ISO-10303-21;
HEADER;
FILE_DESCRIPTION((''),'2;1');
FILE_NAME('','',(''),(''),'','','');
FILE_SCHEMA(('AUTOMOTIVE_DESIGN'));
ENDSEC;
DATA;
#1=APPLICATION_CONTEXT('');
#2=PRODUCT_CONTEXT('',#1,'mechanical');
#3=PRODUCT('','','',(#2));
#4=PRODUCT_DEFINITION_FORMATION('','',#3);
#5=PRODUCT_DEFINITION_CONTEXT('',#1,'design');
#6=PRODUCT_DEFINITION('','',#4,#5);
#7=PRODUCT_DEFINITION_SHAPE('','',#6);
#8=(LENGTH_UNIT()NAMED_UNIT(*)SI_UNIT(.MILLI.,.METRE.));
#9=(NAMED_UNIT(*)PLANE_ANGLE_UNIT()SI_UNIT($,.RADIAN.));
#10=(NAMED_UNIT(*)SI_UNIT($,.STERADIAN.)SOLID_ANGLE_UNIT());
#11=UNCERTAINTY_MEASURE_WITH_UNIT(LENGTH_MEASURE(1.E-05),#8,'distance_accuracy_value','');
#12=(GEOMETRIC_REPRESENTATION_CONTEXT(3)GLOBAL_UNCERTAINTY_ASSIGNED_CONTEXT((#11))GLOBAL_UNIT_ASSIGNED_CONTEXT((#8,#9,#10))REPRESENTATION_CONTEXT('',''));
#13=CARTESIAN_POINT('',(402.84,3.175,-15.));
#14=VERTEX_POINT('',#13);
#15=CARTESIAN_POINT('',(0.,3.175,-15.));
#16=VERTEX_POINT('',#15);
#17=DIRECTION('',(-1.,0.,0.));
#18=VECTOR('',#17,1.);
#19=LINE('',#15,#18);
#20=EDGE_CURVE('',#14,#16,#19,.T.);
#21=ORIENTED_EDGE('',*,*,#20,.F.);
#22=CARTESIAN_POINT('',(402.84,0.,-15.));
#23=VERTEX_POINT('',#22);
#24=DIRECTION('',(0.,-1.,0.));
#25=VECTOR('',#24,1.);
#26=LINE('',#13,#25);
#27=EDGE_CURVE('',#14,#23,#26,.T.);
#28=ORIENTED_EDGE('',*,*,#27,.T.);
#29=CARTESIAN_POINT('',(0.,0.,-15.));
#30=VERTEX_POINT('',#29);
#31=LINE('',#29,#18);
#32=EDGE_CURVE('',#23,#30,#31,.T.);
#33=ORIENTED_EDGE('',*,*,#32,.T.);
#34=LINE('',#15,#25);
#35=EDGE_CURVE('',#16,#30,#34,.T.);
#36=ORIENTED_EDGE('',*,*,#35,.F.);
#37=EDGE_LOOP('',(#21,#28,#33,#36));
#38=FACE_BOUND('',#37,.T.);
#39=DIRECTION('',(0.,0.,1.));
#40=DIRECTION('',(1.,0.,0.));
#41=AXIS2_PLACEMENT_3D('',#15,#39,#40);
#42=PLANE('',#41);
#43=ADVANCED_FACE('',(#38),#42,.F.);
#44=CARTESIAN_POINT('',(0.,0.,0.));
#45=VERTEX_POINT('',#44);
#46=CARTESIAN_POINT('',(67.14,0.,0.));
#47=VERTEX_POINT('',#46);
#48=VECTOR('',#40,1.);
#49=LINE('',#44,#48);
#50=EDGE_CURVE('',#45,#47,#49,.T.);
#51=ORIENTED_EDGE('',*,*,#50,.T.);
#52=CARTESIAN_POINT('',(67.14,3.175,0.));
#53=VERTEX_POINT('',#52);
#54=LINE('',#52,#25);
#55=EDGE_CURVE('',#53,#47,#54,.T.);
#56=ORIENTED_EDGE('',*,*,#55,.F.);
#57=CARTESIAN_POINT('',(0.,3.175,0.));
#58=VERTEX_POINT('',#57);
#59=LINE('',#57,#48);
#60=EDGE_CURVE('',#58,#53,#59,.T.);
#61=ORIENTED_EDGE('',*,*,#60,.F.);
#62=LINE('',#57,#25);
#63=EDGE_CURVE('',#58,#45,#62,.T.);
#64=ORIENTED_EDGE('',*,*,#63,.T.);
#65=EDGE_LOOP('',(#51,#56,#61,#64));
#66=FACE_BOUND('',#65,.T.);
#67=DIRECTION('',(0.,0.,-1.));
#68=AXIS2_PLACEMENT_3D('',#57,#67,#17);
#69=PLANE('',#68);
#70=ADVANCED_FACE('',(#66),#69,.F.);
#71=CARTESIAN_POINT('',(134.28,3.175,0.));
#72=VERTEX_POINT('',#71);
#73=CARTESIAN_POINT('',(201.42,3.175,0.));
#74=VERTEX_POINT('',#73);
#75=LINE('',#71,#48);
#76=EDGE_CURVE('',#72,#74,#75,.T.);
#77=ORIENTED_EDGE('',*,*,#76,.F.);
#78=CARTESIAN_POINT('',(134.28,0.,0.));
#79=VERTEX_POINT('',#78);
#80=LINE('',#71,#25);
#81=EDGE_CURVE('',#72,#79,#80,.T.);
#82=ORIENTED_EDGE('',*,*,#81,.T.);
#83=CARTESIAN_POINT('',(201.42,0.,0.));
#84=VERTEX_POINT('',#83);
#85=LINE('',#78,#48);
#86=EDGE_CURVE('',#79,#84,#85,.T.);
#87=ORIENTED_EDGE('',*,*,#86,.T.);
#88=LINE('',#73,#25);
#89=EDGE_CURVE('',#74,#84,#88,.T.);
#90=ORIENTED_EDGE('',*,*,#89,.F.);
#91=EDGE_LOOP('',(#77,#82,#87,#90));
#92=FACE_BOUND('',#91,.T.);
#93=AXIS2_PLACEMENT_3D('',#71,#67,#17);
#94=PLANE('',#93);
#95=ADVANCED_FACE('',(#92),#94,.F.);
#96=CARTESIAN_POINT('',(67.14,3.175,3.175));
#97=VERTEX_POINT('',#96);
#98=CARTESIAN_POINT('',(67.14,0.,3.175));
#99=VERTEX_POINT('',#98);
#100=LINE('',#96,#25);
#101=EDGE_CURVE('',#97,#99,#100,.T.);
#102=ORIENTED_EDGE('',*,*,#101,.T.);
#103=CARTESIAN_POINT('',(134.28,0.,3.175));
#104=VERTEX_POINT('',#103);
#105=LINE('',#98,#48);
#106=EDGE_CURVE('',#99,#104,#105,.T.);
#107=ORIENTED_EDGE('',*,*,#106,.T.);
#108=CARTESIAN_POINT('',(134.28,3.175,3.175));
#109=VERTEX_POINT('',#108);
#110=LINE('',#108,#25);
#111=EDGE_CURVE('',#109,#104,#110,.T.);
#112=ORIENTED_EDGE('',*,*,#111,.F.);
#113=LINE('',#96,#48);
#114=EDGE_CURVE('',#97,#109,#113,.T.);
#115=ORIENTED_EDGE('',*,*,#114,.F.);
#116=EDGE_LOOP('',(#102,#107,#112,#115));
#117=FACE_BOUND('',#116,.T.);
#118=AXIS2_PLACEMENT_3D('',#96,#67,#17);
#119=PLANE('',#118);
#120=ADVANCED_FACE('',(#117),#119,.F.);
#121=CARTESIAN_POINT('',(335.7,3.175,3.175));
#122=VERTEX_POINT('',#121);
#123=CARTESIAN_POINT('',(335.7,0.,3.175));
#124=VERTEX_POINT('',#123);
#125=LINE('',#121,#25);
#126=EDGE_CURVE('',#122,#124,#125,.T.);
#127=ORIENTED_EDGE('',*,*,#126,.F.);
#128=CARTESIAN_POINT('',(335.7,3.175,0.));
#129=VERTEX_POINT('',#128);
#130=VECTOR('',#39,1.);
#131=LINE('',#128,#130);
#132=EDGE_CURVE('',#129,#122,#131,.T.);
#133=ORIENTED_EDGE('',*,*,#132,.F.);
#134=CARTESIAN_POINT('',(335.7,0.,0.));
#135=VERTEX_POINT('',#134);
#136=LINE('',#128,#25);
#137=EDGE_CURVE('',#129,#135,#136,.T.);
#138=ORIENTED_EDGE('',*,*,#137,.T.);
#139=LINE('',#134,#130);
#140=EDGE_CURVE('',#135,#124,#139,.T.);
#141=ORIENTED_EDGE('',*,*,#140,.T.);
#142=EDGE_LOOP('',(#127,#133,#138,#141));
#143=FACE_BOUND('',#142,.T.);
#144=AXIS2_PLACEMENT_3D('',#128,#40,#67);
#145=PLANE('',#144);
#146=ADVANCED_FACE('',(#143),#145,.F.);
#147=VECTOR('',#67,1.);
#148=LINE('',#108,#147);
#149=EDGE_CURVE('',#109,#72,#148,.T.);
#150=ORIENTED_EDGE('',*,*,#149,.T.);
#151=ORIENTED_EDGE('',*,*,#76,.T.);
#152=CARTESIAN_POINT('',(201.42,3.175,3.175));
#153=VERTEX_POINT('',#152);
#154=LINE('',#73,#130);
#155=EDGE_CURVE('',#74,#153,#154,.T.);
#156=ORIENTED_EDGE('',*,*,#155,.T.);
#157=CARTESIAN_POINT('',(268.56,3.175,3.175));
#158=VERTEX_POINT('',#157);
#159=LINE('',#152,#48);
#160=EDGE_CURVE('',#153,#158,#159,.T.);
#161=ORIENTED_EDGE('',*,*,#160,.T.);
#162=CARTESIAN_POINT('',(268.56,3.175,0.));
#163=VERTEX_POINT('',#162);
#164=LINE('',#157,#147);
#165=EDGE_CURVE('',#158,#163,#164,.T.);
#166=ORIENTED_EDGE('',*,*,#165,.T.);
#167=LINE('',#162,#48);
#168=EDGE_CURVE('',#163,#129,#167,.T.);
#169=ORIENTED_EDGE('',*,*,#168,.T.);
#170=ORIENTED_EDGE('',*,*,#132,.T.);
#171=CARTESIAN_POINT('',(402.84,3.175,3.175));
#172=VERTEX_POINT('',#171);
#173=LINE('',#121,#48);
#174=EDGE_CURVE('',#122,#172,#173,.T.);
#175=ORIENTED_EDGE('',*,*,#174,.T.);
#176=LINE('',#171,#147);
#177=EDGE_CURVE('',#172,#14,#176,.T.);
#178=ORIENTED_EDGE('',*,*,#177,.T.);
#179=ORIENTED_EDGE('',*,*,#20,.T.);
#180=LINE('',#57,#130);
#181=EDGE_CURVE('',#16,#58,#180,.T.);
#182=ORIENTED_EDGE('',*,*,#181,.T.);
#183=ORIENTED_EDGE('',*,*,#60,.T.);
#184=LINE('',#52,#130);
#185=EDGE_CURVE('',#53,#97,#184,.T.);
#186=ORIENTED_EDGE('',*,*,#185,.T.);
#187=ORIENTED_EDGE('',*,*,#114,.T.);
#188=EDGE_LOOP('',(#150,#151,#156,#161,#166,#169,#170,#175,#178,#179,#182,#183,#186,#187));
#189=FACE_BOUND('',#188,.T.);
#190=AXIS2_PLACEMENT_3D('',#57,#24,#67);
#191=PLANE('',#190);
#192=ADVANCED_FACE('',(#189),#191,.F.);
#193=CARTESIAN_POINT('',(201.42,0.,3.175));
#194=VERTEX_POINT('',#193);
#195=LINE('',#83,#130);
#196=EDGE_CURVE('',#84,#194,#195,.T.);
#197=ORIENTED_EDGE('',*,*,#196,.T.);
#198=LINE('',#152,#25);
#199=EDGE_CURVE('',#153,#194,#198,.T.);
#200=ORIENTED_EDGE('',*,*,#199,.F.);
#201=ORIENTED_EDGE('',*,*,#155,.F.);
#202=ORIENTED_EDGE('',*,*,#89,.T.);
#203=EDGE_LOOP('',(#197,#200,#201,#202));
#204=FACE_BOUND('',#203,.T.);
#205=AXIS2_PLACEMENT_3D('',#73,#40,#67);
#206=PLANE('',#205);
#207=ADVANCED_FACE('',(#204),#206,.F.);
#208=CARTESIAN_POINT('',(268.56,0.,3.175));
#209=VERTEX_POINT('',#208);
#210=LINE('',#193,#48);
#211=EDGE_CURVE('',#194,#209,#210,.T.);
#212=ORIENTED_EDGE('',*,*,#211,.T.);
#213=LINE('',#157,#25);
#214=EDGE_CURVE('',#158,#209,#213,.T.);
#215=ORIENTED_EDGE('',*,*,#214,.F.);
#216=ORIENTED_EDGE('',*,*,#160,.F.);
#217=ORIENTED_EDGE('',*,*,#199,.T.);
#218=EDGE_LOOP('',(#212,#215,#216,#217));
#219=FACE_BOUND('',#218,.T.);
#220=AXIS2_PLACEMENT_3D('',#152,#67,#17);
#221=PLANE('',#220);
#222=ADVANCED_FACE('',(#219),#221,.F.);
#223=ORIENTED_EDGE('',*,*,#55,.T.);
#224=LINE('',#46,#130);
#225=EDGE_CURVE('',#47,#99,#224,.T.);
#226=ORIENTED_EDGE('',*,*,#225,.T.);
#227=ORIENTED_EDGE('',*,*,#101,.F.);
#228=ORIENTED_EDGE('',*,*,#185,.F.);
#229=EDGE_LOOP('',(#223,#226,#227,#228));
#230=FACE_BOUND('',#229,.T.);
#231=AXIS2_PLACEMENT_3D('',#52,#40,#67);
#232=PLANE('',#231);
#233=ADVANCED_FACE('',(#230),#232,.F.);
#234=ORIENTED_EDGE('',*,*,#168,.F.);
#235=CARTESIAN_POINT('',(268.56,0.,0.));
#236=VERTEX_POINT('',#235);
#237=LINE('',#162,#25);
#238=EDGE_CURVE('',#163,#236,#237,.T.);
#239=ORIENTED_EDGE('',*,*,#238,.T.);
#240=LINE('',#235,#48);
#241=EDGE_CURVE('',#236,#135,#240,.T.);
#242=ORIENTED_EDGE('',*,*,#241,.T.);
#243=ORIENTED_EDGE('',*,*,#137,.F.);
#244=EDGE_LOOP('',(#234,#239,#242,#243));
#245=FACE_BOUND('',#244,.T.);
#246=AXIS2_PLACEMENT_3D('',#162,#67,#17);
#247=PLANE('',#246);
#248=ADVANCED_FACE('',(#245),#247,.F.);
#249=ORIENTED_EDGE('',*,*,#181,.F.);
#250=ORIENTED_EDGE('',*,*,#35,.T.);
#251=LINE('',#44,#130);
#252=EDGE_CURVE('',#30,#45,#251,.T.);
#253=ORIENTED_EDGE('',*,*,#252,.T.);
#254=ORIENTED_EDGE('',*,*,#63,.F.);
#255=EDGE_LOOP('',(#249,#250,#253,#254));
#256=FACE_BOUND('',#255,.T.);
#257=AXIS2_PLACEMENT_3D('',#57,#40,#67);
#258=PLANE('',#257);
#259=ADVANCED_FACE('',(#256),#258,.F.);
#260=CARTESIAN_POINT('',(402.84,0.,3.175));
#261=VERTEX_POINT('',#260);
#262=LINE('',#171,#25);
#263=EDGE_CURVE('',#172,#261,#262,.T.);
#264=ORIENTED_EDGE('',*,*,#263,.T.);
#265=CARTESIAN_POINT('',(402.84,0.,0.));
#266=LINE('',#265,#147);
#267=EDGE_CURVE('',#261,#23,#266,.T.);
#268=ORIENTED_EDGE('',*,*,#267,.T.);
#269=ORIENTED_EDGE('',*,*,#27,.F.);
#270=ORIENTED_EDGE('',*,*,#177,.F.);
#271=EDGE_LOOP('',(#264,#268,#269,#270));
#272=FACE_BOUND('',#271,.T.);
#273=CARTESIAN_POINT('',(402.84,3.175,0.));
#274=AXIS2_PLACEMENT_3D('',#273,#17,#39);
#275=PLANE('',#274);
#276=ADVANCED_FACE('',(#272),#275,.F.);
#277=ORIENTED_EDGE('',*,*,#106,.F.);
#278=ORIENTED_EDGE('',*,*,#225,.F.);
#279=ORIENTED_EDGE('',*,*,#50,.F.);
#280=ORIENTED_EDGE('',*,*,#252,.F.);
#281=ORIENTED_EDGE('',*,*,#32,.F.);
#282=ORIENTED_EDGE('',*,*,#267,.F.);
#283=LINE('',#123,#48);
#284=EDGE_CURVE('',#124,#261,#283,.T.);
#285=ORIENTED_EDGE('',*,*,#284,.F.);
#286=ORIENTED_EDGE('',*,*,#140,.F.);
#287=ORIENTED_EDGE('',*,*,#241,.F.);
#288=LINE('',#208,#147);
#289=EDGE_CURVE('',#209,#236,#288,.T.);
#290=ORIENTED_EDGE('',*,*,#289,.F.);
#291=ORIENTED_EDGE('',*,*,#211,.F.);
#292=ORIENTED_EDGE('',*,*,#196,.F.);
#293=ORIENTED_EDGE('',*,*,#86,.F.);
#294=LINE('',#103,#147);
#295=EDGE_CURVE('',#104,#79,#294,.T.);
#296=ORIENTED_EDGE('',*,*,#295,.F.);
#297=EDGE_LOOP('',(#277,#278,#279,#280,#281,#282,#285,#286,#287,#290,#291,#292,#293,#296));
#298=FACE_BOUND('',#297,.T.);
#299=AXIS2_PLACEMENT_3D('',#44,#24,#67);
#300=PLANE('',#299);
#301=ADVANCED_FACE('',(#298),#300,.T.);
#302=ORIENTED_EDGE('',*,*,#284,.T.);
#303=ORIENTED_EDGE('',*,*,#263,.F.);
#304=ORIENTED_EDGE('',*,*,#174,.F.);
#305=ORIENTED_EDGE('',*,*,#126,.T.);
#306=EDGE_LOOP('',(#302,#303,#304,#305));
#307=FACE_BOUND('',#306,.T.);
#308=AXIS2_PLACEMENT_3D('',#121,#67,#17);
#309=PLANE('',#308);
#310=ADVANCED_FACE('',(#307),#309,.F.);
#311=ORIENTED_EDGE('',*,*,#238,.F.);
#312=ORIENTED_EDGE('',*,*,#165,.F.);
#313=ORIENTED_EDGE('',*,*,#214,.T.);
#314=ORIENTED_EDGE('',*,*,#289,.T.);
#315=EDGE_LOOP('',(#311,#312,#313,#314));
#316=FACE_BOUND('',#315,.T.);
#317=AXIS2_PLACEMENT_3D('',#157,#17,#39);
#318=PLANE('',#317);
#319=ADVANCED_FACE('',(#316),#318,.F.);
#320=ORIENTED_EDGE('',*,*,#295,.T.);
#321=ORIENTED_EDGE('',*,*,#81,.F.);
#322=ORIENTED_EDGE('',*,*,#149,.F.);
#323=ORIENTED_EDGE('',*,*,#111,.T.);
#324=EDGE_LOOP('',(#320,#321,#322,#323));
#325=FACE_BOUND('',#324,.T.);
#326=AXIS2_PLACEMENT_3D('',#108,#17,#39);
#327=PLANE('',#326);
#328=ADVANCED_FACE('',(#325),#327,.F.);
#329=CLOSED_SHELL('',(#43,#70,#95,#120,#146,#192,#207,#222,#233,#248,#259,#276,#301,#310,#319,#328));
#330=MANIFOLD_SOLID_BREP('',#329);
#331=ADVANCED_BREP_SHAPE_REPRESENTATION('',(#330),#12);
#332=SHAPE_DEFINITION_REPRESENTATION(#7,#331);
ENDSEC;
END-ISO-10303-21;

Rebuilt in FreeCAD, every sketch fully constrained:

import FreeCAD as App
import Part
import Sketcher
Q = App.Units.Quantity

doc = App.newDocument("Part")
body = doc.addObject("PartDesign::Body", "Body")

# Sketch on XZ plane
sketch1 = doc.addObject("Sketcher::SketchObject", "Sketch")
body.addObject(sketch1)
sketch1.AttachmentSupport = (doc.XZ_Plane, [""])
sketch1.MapMode = "FlatFace"
sketch1.addGeometry(Part.LineSegment(App.Vector(0, 0, 0), App.Vector(67.1, 0, 0)), False)
sketch1.addGeometry(Part.LineSegment(App.Vector(67.1, 0, 0), App.Vector(67.1, 3.2, 0)), False)
sketch1.addGeometry(Part.LineSegment(App.Vector(67.1, 3.2, 0), App.Vector(134.3, 3.2, 0)), False)
sketch1.addGeometry(Part.LineSegment(App.Vector(134.3, 3.2, 0), App.Vector(134.3, 0, 0)), False)
sketch1.addGeometry(Part.LineSegment(App.Vector(134.3, 0, 0), App.Vector(201.4, 0, 0)), False)
sketch1.addGeometry(Part.LineSegment(App.Vector(201.4, 0, 0), App.Vector(201.4, 3.2, 0)), False)
sketch1.addGeometry(Part.LineSegment(App.Vector(201.4, 3.2, 0), App.Vector(268.6, 3.2, 0)), False)
sketch1.addGeometry(Part.LineSegment(App.Vector(268.6, 3.2, 0), App.Vector(268.6, 0, 0)), False)
sketch1.addGeometry(Part.LineSegment(App.Vector(268.6, 0, 0), App.Vector(335.7, 0, 0)), False)
sketch1.addGeometry(Part.LineSegment(App.Vector(335.7, 0, 0), App.Vector(335.7, 3.2, 0)), False)
sketch1.addGeometry(Part.LineSegment(App.Vector(335.7, 3.2, 0), App.Vector(402.8, 3.2, 0)), False)
sketch1.addGeometry(Part.LineSegment(App.Vector(402.8, 3.2, 0), App.Vector(402.8, -15, 0)), False)
sketch1.addGeometry(Part.LineSegment(App.Vector(402.8, -15, 0), App.Vector(0, -15, 0)), False)
sketch1.addGeometry(Part.LineSegment(App.Vector(0, -15, 0), App.Vector(0, 0, 0)), False)
sketch1.addConstraint(Sketcher.Constraint("Coincident", 0, 2, 1, 1))
sketch1.addConstraint(Sketcher.Constraint("Coincident", 1, 2, 2, 1))
sketch1.addConstraint(Sketcher.Constraint("Coincident", 2, 2, 3, 1))
sketch1.addConstraint(Sketcher.Constraint("Coincident", 3, 2, 4, 1))
sketch1.addConstraint(Sketcher.Constraint("Coincident", 4, 2, 5, 1))
sketch1.addConstraint(Sketcher.Constraint("Coincident", 5, 2, 6, 1))
sketch1.addConstraint(Sketcher.Constraint("Coincident", 6, 2, 7, 1))
sketch1.addConstraint(Sketcher.Constraint("Coincident", 7, 2, 8, 1))
sketch1.addConstraint(Sketcher.Constraint("Coincident", 8, 2, 9, 1))
sketch1.addConstraint(Sketcher.Constraint("Coincident", 9, 2, 10, 1))
sketch1.addConstraint(Sketcher.Constraint("Coincident", 10, 2, 11, 1))
sketch1.addConstraint(Sketcher.Constraint("Coincident", 11, 2, 12, 1))
sketch1.addConstraint(Sketcher.Constraint("Coincident", 12, 2, 13, 1))
sketch1.addConstraint(Sketcher.Constraint("Coincident", 13, 2, 0, 1))
sketch1.addConstraint(Sketcher.Constraint("Horizontal", 0))
sketch1.addConstraint(Sketcher.Constraint("Vertical", 1))
sketch1.addConstraint(Sketcher.Constraint("Horizontal", 2))
sketch1.addConstraint(Sketcher.Constraint("Vertical", 3))
sketch1.addConstraint(Sketcher.Constraint("Horizontal", 4))
sketch1.addConstraint(Sketcher.Constraint("Vertical", 5))
sketch1.addConstraint(Sketcher.Constraint("Horizontal", 6))
sketch1.addConstraint(Sketcher.Constraint("Vertical", 7))
sketch1.addConstraint(Sketcher.Constraint("Horizontal", 8))
sketch1.addConstraint(Sketcher.Constraint("Vertical", 9))
sketch1.addConstraint(Sketcher.Constraint("Horizontal", 10))
sketch1.addConstraint(Sketcher.Constraint("Vertical", 11))
sketch1.addConstraint(Sketcher.Constraint("Horizontal", 12))
sketch1.addConstraint(Sketcher.Constraint("Vertical", 13))
sketch1.addConstraint(Sketcher.Constraint("Coincident", 13, 2, -1, 1))
sketch1.addConstraint(Sketcher.Constraint("PointOnObject", 3, 2, -1))
sketch1.addConstraint(Sketcher.Constraint("PointOnObject", 7, 2, -1))
sketch1.addConstraint(Sketcher.Constraint("Horizontal", 2, 2, 5, 2))
sketch1.addConstraint(Sketcher.Constraint("Horizontal", 6, 2, 9, 2))
sketch1.addConstraint(Sketcher.Constraint("Equal", 0, 2))
sketch1.addConstraint(Sketcher.Constraint("Equal", 2, 4))
sketch1.addConstraint(Sketcher.Constraint("Equal", 4, 6))
sketch1.addConstraint(Sketcher.Constraint("Equal", 6, 8))
sketch1.addConstraint(Sketcher.Constraint("Equal", 8, 10))
sketch1.addConstraint(Sketcher.Constraint("DistanceY", 13, 1, 13, 2, Q("15 mm")))
sketch1.addConstraint(Sketcher.Constraint("DistanceX", 0, 1, 0, 2, Q("67.14 mm")))
sketch1.addConstraint(Sketcher.Constraint("DistanceY", 1, 1, 1, 2, Q("3.175 mm")))
pad1 = doc.addObject("PartDesign::Pad", "Pad")
body.addObject(pad1)
pad1.Profile = sketch1
pad1.Length = 3.175
pad1.Reversed = True

doc.recompute()
